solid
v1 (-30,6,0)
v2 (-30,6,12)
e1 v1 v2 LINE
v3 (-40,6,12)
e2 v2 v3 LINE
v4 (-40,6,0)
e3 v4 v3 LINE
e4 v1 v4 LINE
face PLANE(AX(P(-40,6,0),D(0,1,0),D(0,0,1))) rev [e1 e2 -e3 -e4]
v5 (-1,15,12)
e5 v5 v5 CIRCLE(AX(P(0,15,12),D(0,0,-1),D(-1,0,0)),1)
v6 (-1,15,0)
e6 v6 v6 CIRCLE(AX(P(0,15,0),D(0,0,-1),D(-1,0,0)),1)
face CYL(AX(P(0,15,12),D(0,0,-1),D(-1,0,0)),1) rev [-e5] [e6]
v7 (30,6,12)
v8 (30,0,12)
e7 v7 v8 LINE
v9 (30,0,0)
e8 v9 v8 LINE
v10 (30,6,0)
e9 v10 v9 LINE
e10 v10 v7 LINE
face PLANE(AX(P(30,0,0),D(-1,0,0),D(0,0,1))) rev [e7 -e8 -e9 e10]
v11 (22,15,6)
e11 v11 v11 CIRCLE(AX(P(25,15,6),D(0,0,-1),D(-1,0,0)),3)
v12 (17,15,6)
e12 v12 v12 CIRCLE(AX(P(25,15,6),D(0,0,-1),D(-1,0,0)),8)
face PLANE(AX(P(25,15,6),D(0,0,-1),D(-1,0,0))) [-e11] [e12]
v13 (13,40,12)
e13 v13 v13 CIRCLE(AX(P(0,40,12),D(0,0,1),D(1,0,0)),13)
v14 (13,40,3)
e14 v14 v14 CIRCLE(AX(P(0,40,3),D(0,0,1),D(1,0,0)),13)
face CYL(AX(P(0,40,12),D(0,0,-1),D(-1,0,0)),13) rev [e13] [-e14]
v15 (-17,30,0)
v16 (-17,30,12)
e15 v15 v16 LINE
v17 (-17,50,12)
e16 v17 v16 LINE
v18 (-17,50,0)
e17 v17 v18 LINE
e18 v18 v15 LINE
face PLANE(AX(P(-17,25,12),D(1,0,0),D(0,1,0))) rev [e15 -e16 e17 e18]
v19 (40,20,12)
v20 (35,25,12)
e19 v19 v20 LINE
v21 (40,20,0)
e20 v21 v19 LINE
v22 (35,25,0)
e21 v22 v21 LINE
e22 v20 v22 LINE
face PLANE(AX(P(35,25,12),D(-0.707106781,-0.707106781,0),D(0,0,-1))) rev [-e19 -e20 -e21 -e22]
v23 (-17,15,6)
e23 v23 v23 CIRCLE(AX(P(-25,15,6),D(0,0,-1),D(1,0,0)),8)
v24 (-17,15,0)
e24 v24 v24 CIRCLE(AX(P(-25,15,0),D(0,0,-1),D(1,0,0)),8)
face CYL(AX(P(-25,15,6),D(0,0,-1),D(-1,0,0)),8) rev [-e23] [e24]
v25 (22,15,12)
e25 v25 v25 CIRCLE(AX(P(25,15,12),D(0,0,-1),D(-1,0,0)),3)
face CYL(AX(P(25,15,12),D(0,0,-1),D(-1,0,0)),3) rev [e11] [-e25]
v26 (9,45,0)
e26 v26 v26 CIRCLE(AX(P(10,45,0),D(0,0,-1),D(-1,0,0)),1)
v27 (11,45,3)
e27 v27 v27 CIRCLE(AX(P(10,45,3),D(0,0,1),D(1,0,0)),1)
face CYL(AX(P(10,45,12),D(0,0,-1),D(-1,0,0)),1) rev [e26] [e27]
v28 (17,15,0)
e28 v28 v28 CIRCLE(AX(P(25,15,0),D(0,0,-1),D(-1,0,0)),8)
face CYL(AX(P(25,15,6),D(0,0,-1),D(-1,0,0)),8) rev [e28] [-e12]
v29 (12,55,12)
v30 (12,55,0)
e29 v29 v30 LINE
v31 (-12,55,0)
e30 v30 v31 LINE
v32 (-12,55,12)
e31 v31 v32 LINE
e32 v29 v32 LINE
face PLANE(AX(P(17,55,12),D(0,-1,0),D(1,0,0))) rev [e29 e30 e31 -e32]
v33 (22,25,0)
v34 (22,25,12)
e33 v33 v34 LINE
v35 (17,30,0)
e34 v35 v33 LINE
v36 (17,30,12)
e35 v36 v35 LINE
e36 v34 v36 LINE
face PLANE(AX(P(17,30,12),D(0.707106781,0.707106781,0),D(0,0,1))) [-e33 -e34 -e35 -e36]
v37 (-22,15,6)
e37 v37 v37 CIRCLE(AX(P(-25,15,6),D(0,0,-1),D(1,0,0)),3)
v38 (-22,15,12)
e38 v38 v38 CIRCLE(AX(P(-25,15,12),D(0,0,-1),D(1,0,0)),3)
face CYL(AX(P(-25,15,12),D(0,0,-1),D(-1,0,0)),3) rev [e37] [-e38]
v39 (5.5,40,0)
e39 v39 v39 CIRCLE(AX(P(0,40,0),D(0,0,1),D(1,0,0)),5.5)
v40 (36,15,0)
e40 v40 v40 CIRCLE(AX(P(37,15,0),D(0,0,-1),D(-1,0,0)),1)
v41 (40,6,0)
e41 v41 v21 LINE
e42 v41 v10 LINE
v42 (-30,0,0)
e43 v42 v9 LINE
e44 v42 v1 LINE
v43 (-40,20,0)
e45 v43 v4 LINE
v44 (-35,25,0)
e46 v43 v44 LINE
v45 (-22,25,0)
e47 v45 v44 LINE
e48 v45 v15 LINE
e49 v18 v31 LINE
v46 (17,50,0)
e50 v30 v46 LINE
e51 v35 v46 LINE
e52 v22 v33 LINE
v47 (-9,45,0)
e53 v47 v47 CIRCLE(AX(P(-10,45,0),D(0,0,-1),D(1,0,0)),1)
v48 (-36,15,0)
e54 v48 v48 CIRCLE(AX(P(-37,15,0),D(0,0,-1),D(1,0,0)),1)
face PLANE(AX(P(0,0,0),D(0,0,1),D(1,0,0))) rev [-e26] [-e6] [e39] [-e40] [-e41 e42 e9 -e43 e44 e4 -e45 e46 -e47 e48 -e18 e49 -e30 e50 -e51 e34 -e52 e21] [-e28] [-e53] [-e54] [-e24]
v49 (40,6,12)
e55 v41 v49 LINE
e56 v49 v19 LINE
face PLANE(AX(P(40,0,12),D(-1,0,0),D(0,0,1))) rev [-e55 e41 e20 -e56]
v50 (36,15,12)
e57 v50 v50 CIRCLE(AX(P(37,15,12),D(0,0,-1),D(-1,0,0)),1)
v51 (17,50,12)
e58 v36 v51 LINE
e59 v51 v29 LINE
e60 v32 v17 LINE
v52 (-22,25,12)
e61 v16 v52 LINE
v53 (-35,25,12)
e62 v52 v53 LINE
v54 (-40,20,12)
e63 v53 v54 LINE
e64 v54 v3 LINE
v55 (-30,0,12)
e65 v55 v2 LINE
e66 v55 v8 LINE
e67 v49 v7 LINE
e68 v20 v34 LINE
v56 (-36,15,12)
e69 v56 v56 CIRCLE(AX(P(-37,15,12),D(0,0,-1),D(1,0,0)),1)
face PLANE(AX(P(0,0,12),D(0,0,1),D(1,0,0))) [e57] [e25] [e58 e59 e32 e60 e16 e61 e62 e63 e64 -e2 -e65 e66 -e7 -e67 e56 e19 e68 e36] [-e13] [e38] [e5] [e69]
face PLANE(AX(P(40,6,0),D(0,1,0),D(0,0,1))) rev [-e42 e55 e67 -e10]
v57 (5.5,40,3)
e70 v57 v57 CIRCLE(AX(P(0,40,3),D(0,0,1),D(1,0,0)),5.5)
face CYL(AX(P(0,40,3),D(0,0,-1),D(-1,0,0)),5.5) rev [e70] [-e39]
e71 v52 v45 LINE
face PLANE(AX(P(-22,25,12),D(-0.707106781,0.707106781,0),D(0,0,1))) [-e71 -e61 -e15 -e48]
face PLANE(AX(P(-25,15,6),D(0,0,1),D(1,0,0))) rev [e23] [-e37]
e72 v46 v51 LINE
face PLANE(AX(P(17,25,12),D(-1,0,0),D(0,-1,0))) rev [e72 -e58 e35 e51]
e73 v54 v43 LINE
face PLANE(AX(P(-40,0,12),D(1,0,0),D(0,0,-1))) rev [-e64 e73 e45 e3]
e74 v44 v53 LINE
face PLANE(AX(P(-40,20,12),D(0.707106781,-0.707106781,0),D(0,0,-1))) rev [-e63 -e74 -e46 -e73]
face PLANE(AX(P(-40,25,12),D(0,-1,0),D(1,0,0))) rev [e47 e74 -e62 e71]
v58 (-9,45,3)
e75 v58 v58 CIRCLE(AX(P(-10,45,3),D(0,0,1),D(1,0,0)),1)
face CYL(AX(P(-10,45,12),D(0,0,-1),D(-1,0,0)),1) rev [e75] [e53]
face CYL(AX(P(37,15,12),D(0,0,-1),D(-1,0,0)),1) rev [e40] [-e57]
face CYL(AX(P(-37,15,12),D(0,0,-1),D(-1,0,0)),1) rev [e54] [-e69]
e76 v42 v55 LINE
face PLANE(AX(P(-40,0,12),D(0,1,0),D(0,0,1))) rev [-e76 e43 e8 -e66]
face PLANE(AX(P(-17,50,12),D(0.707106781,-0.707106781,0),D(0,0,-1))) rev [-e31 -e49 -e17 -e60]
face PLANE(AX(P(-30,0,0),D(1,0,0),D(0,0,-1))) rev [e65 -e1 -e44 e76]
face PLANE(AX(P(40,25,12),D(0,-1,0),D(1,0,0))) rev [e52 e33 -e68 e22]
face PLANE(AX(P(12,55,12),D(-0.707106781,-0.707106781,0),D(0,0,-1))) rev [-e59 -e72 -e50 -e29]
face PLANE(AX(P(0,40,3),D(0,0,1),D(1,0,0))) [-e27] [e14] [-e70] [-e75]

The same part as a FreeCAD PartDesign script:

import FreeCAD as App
import Part
import Sketcher

V = App.Vector


def edges_at(feature, points):
    """Names of the edges that pass closest to the given points."""
    edges = feature.Shape.Edges
    near = lambda p: min(range(len(edges)), key=lambda i: edges[i].distToShape(Part.Vertex(*p))[0])
    return sorted({f"Edge{near(p) + 1}" for p in points})

doc = App.newDocument("Part")
body = doc.addObject("PartDesign::Body", "Body")

# Sketch on XY plane
sketch1 = body.newObject("Sketcher::SketchObject", "Sketch")
sketch1.AttachmentSupport = (doc.getObject("XY_Plane"), [""])
sketch1.MapMode = "FlatFace"
sketch1.addGeometry([
    Part.LineSegment(V(-40, 0, 0), V(40, 0, 0)),  # 0
    Part.LineSegment(V(40, 0, 0), V(40, 25, 0)),  # 1
    Part.LineSegment(V(40, 25, 0), V(17, 25, 0)),  # 2
    Part.LineSegment(V(17, 25, 0), V(17, 55, 0)),  # 3
    Part.LineSegment(V(17, 55, 0), V(-17, 55, 0)),  # 4
    Part.LineSegment(V(-17, 55, 0), V(-17, 25, 0)),  # 5
    Part.LineSegment(V(-17, 25, 0), V(-40, 25, 0)),  # 6
    Part.LineSegment(V(-40, 25, 0), V(-40, 0, 0)),  # 7
    Part.Circle(V(0, 40, 0), V(0, 0, 1), 13),  # 8
], False)
sketch1.addConstraint([
    Sketcher.Constraint("Coincident", 0, 2, 1, 1),
    Sketcher.Constraint("Coincident", 1, 2, 2, 1),
    Sketcher.Constraint("Coincident", 2, 2, 3, 1),
    Sketcher.Constraint("Coincident", 3, 2, 4, 1),
    Sketcher.Constraint("Coincident", 4, 2, 5, 1),
    Sketcher.Constraint("Coincident", 5, 2, 6, 1),
    Sketcher.Constraint("Coincident", 6, 2, 7, 1),
    Sketcher.Constraint("Coincident", 7, 2, 0, 1),
    Sketcher.Constraint("Horizontal", 0),
    Sketcher.Constraint("Vertical", 1),
    Sketcher.Constraint("Horizontal", 2),
    Sketcher.Constraint("Vertical", 3),
    Sketcher.Constraint("Horizontal", 4),
    Sketcher.Constraint("Vertical", 5),
    Sketcher.Constraint("Horizontal", 6),
    Sketcher.Constraint("Vertical", 7),
    Sketcher.Constraint("Symmetric", 0, 2, 7, 2, -1, 1),
    Sketcher.Constraint("Symmetric", 2, 2, 5, 2, -2),
    Sketcher.Constraint("PointOnObject", 8, 3, -2),
    Sketcher.Constraint("Diameter", 8, 26.0),
    Sketcher.Constraint("DistanceX", 0, 1, 0, 2, 80.0),
    Sketcher.Constraint("DistanceX", 2, 2, 2, 1, 23.0),
    Sketcher.Constraint("DistanceY", 1, 1, 1, 2, 25.0),
    Sketcher.Constraint("DistanceY", 3, 1, 3, 2, 30.0),
    Sketcher.Constraint("DistanceY", -1, 1, 8, 3, 40.0),
])
pad1 = body.newObject("PartDesign::Pad", "Pad")
pad1.Profile = sketch1
pad1.Length = 12

# Sketch on XY plane
sketch2 = body.newObject("Sketcher::SketchObject", "Sketch001")
sketch2.AttachmentSupport = (doc.getObject("XY_Plane"), [""])
sketch2.MapMode = "FlatFace"
sketch2.addGeometry([
    Part.Circle(V(0, 40, 0), V(0, 0, 1), 13),
    Part.Circle(V(0, 40, 0), V(0, 0, 1), 6),
], False)
sketch2.addConstraint([
    Sketcher.Constraint("Coincident", 1, 3, 0, 3),
    Sketcher.Constraint("PointOnObject", 0, 3, -2),
    Sketcher.Constraint("Diameter", 0, 26.0),
    Sketcher.Constraint("Diameter", 1, 11.0),
    Sketcher.Constraint("DistanceY", -1, 1, 0, 3, 40.0),
])
pad2 = body.newObject("PartDesign::Pad", "Pad001")
pad2.Profile = sketch2
pad2.Length = 3

# Sketch on XY plane
sketch3 = body.newObject("Sketcher::SketchObject", "Sketch002")
sketch3.AttachmentSupport = (doc.getObject("XY_Plane"), [""])
sketch3.MapMode = "FlatFace"
sketch3.addGeometry([
    Part.Circle(V(25, 15, 0), V(0, 0, 1), 8),
    Part.Circle(V(-25, 15, 0), V(0, 0, 1), 8),
], False)
sketch3.addConstraint([
    Sketcher.Constraint("Equal", 0, 1),
    Sketcher.Constraint("Symmetric", 0, 3, 1, 3, -2),
    Sketcher.Constraint("Diameter", 0, 16.0),
    Sketcher.Constraint("DistanceX", -1, 1, 0, 3, 25.0),
    Sketcher.Constraint("DistanceY", -1, 1, 0, 3, 15.0),
])
pocket1 = body.newObject("PartDesign::Pocket", "Pocket")
pocket1.Profile = sketch3
pocket1.Length = 6
pocket1.Reversed = True

# Sketch on XY plane
sketch4 = body.newObject("Sketcher::SketchObject", "Sketch003")
sketch4.AttachmentSupport = (doc.getObject("XY_Plane"), [""])
sketch4.MapMode = "FlatFace"
sketch4.AttachmentOffset = App.Placement(V(0, 0, 6), App.Rotation())
sketch4.addGeometry([
    Part.Circle(V(25, 15, 0), V(0, 0, 1), 3),
    Part.Circle(V(-25, 15, 0), V(0, 0, 1), 3),
], False)
sketch4.addConstraint([
    Sketcher.Constraint("Equal", 0, 1),
    Sketcher.Constraint("Symmetric", 0, 3, 1, 3, -2),
    Sketcher.Constraint("Diameter", 0, 6.0),
    Sketcher.Constraint("DistanceX", -1, 1, 0, 3, 25.0),
    Sketcher.Constraint("DistanceY", -1, 1, 0, 3, 15.0),
])
pocket2 = body.newObject("PartDesign::Pocket", "Pocket001")
pocket2.Profile = sketch4
pocket2.Type = "ThroughAll"
pocket2.Reversed = True

# Sketch on XY plane
sketch5 = body.newObject("Sketcher::SketchObject", "Sketch004")
sketch5.AttachmentSupport = (doc.getObject("XY_Plane"), [""])
sketch5.MapMode = "FlatFace"
sketch5.AttachmentOffset = App.Placement(V(0, 0, 12), App.Rotation())
sketch5.addGeometry([
    Part.LineSegment(V(30, 6, 0), V(30, 0, 0)),  # 0
    Part.LineSegment(V(30, 0, 0), V(40, 0, 0)),  # 1
    Part.LineSegment(V(40, 0, 0), V(40, 6, 0)),  # 2
    Part.LineSegment(V(40, 6, 0), V(30, 6, 0)),  # 3
    Part.LineSegment(V(-40, 6, 0), V(-40, 0, 0)),  # 4
    Part.LineSegment(V(-40, 0, 0), V(-30, 0, 0)),  # 5
    Part.LineSegment(V(-30, 0, 0), V(-30, 6, 0)),  # 6
    Part.LineSegment(V(-30, 6, 0), V(-40, 6, 0)),  # 7
], False)
sketch5.addConstraint([
    Sketcher.Constraint("Coincident", 0, 2, 1, 1),
    Sketcher.Constraint("Coincident", 1, 2, 2, 1),
    Sketcher.Constraint("Coincident", 2, 2, 3, 1),
    Sketcher.Constraint("Coincident", 3, 2, 0, 1),
    Sketcher.Constraint("Coincident", 4, 2, 5, 1),
    Sketcher.Constraint("Coincident", 5, 2, 6, 1),
    Sketcher.Constraint("Coincident", 6, 2, 7, 1),
    Sketcher.Constraint("Coincident", 7, 2, 4, 1),
    Sketcher.Constraint("Vertical", 0),
    Sketcher.Constraint("Horizontal", 1),
    Sketcher.Constraint("Vertical", 2),
    Sketcher.Constraint("Horizontal", 3),
    Sketcher.Constraint("Vertical", 4),
    Sketcher.Constraint("Horizontal", 5),
    Sketcher.Constraint("Vertical", 6),
    Sketcher.Constraint("Horizontal", 7),
    Sketcher.Constraint("Symmetric", 1, 2, 4, 2, -1, 1),
    Sketcher.Constraint("Symmetric", 0, 2, 5, 2, -2),
    Sketcher.Constraint("Horizontal", 3, 2, 6, 2),
    Sketcher.Constraint("DistanceX", 1, 1, 1, 2, 10.0),
    Sketcher.Constraint("DistanceY", 0, 2, 0, 1, 6.0),
    Sketcher.Constraint("DistanceX", -1, 1, 0, 2, 30.0),
])
pocket3 = body.newObject("PartDesign::Pocket", "Pocket002")
pocket3.Profile = sketch5
pocket3.Length = 12
doc.recompute()

chamfer = body.newObject("PartDesign::Chamfer", "Chamfer")
chamfer.Base = (pocket3, edges_at(pocket3, [
    (-17, 55, 6),
    (17, 55, 6),
    (17, 25, 6),
    (40, 25, 6),
    (-40, 25, 6),
    (-17, 25, 6),
]))
chamfer.Size = 5

# Sketch on XY plane
sketch6 = body.newObject("Sketcher::SketchObject", "Sketch005")
sketch6.AttachmentSupport = (doc.getObject("XY_Plane"), [""])
sketch6.MapMode = "FlatFace"
sketch6.addGeometry([
    Part.Circle(V(10, 45, 0), V(0, 0, 1), 1),  # 0
    Part.Circle(V(-10, 45, 0), V(0, 0, 1), 1),  # 1
    Part.Circle(V(37, 15, 0), V(0, 0, 1), 1),  # 2
    Part.Circle(V(-37, 15, 0), V(0, 0, 1), 1),  # 3
    Part.Circle(V(0, 15, 0), V(0, 0, 1), 1),  # 4
], False)
sketch6.addConstraint([
    Sketcher.Constraint("Equal", 0, 1),
    Sketcher.Constraint("Equal", 1, 2),
    Sketcher.Constraint("Equal", 2, 3),
    Sketcher.Constraint("Equal", 3, 4),
    Sketcher.Constraint("Symmetric", 0, 3, 1, 3, -2),
    Sketcher.Constraint("Symmetric", 2, 3, 3, 3, -2),
    Sketcher.Constraint("PointOnObject", 4, 3, -2),
    Sketcher.Constraint("Horizontal", 3, 3, 4, 3),
    Sketcher.Constraint("Diameter", 0, 2.0),
    Sketcher.Constraint("DistanceX", -1, 1, 0, 3, 10.0),
    Sketcher.Constraint("DistanceY", -1, 1, 0, 3, 45.0),
    Sketcher.Constraint("DistanceX", -1, 1, 2, 3, 37.0),
    Sketcher.Constraint("DistanceY", -1, 1, 2, 3, 15.0),
])
pocket4 = body.newObject("PartDesign::Pocket", "Pocket003")
pocket4.Profile = sketch6
pocket4.Length = 12
pocket4.Reversed = True

doc.recompute()
